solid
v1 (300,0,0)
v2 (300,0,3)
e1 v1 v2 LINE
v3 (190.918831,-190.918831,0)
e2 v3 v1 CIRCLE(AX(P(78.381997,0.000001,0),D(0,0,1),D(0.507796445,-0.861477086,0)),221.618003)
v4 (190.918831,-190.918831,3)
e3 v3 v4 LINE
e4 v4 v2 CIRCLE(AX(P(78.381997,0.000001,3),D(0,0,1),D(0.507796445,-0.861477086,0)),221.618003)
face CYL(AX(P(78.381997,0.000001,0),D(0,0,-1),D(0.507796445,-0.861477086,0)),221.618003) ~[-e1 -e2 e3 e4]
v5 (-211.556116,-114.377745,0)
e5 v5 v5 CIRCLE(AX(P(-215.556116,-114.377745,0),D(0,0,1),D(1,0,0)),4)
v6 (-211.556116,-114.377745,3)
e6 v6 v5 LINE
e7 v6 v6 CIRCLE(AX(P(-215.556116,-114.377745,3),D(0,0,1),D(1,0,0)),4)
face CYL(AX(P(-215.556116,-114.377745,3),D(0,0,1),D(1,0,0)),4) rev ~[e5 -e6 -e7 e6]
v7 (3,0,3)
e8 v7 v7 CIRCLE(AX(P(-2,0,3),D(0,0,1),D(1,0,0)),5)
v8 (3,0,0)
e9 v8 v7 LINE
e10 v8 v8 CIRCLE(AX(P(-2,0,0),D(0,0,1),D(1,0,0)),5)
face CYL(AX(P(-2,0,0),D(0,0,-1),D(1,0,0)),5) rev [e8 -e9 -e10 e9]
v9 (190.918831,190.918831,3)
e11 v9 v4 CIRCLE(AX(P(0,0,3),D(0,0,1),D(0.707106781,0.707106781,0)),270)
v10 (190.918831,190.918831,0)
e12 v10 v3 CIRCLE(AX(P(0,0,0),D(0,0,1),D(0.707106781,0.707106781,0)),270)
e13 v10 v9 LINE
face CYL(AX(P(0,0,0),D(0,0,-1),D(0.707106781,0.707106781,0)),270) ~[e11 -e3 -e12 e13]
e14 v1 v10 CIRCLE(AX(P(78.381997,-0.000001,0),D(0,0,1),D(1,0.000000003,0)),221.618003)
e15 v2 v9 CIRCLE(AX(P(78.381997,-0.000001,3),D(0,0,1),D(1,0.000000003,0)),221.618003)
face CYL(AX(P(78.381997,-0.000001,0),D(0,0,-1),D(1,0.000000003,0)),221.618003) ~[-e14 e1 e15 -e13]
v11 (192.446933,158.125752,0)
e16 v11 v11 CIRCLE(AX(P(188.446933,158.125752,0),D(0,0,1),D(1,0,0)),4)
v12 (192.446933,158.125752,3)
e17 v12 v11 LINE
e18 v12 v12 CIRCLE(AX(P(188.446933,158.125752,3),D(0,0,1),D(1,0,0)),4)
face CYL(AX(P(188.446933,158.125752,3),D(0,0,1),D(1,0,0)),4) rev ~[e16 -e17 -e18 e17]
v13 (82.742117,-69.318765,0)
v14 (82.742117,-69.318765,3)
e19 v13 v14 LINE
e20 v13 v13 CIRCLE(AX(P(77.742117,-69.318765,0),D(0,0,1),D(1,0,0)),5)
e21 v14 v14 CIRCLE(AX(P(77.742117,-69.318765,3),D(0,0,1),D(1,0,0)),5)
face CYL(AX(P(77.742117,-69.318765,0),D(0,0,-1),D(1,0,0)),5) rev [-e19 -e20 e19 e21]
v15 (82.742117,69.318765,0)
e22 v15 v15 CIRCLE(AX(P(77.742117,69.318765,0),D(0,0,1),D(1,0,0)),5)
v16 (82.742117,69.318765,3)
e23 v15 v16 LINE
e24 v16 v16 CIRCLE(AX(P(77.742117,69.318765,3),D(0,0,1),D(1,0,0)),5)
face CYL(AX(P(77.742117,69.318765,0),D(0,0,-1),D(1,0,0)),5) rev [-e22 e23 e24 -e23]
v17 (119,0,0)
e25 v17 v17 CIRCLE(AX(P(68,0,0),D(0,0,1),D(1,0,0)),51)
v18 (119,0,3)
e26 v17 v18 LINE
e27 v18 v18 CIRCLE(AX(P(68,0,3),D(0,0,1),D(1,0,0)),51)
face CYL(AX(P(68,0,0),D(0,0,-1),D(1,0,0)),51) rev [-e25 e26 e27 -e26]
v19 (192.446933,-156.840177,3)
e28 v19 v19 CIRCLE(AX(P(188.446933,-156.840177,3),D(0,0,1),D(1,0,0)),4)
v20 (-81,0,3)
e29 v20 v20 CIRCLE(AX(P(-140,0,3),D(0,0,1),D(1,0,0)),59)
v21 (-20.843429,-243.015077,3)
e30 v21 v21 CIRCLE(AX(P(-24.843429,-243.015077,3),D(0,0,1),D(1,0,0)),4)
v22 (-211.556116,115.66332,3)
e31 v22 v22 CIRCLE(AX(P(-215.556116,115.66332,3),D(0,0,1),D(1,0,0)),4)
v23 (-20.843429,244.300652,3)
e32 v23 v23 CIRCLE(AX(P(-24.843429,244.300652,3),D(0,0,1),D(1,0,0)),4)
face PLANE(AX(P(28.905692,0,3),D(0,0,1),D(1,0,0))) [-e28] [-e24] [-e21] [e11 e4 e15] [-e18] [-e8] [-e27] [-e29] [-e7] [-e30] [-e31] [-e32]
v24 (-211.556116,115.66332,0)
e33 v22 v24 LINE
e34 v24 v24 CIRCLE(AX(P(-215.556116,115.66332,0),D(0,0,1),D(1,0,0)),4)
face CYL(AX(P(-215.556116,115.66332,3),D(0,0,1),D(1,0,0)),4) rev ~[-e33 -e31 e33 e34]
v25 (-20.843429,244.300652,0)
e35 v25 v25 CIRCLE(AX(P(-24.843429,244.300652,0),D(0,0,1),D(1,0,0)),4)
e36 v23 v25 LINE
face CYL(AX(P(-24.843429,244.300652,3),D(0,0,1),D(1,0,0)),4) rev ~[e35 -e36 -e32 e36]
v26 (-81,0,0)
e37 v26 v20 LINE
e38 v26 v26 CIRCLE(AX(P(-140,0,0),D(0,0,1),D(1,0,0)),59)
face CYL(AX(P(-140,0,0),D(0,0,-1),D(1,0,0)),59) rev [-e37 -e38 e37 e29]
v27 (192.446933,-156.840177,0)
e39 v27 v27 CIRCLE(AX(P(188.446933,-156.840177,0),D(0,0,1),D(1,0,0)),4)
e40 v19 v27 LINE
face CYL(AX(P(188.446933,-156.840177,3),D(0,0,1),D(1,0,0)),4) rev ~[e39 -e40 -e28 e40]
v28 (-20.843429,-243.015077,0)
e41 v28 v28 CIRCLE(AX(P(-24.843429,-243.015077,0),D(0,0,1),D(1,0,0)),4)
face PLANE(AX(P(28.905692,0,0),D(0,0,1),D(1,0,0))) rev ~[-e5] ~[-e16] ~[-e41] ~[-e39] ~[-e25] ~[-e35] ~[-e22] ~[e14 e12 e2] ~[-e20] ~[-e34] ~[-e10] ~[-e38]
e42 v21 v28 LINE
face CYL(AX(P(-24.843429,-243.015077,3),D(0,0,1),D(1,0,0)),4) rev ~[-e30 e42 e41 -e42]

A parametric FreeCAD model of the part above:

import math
import FreeCAD as App
import Part
import Sketcher

V = App.Vector

doc = App.newDocument("Part")
body = doc.addObject("PartDesign::Body", "Body")

sketch1 = doc.addObject("Sketcher::SketchObject", "Sketch")
body.addObject(sketch1)
sketch1.AttachmentSupport = (doc.XY_Plane, [""])
sketch1.MapMode = "FlatFace"
sketch1.addGeometry(Part.ArcOfCircle(Part.Circle(V(78.381997, 0.000001, 0), V(0, 0, 1), 221.618003), math.radians(-59.482837), math.radians(0)), False)
sketch1.addGeometry(Part.ArcOfCircle(Part.Circle(V(78.381997, -0.000001, 0), V(0, 0, 1), 221.618003), math.radians(0), math.radians(59.482837)), False)
sketch1.addGeometry(Part.ArcOfCircle(Part.Circle(V(0, 0, 0), V(0, 0, 1), 270), math.radians(45), math.radians(315)), False)
sketch1.addGeometry(Part.Circle(V(77.742117, -69.318765, 0), V(0, 0, 1), 5), False)
sketch1.addGeometry(Part.Circle(V(-140, 0, 0), V(0, 0, 1), 59), False)
sketch1.addGeometry(Part.Circle(V(-2, 0, 0), V(0, 0, 1), 5), False)
sketch1.addGeometry(Part.Circle(V(68, 0, 0), V(0, 0, 1), 51), False)
sketch1.addGeometry(Part.Circle(V(77.742117, 69.318765, 0), V(0, 0, 1), 5), False)
sketch1.addConstraint(Sketcher.Constraint("Tangent", 0, 2, 1, 1))
sketch1.addConstraint(Sketcher.Constraint("Coincident", 1, 2, 2, 1))
sketch1.addConstraint(Sketcher.Constraint("Coincident", 2, 2, 0, 1))
sketch1.addConstraint(Sketcher.Constraint("Coincident", 2, 3, -1, 1))
sketch1.addConstraint(Sketcher.Constraint("Equal", 0, 1))
sketch1.addConstraint(Sketcher.Constraint("Equal", 3, 5))
sketch1.addConstraint(Sketcher.Constraint("Equal", 5, 7))
sketch1.addConstraint(Sketcher.Constraint("Symmetric", 3, 3, 7, 3, -1))
sketch1.addConstraint(Sketcher.Constraint("PointOnObject", 0, 3, -1))
sketch1.addConstraint(Sketcher.Constraint("PointOnObject", 4, 3, -1))
sketch1.addConstraint(Sketcher.Constraint("PointOnObject", 5, 3, -1))
sketch1.addConstraint(Sketcher.Constraint("PointOnObject", 6, 3, -1))
sketch1.addConstraint(Sketcher.Constraint("PointOnObject", 0, 2, -1))
sketch1.addConstraint(Sketcher.Constraint("Diameter", 3, 10.0))
sketch1.addConstraint(Sketcher.Constraint("Diameter", 4, 118.0))
sketch1.addConstraint(Sketcher.Constraint("Diameter", 6, 102.0))
sketch1.addConstraint(Sketcher.Constraint("Radius", 2, 270.0))
sketch1.addConstraint(Sketcher.Constraint("DistanceX", 4, 3, -1, 1, 140.0))
sketch1.addConstraint(Sketcher.Constraint("DistanceX", 5, 3, -1, 1, 2.0))
sketch1.addConstraint(Sketcher.Constraint("DistanceX", -1, 1, 6, 3, 68.0))
sketch1.addConstraint(Sketcher.Constraint("DistanceX", -1, 1, 0, 2, 300.0))
sketch1.addConstraint(Sketcher.Constraint("Radius", 0, 221.618003))
sketch1.addConstraint(Sketcher.Constraint("DistanceX", 3, 3, 1, 3, 0.63988))
sketch1.addConstraint(Sketcher.Constraint("DistanceY", 3, 3, -1, 1, 69.318765))
pad1 = doc.addObject("PartDesign::Pad", "Pad")
body.addObject(pad1)
pad1.Profile = sketch1
pad1.Length = 3

sketch2 = doc.addObject("Sketcher::SketchObject", "Sketch001")
body.addObject(sketch2)
sketch2.AttachmentSupport = (doc.XY_Plane, [""])
sketch2.MapMode = "FlatFace"
sketch2.AttachmentOffset = App.Placement(V(0, 0, 3), App.Rotation())
sketch2.addGeometry(Part.Circle(V(188.446933, 158.125752, 0), V(0, 0, 1), 4), False)
sketch2.addGeometry(Part.Circle(V(-24.843429, 244.300652, 0), V(0, 0, 1), 4), False)
sketch2.addGeometry(Part.Circle(V(-215.556116, 115.66332, 0), V(0, 0, 1), 4), False)
sketch2.addGeometry(Part.Circle(V(-215.556116, -114.377745, 0), V(0, 0, 1), 4), False)
sketch2.addGeometry(Part.Circle(V(-24.843429, -243.015077, 0), V(0, 0, 1), 4), False)
sketch2.addGeometry(Part.Circle(V(188.446933, -156.840177, 0), V(0, 0, 1), 4), False)
sketch2.addConstraint(Sketcher.Constraint("Equal", 0, 1))
sketch2.addConstraint(Sketcher.Constraint("Equal", 1, 2))
sketch2.addConstraint(Sketcher.Constraint("Equal", 2, 3))
sketch2.addConstraint(Sketcher.Constraint("Equal", 3, 4))
sketch2.addConstraint(Sketcher.Constraint("Equal", 4, 5))
sketch2.addConstraint(Sketcher.Constraint("Vertical", 2, 3, 3, 3))
sketch2.addConstraint(Sketcher.Constraint("Vertical", 1, 3, 4, 3))
sketch2.addConstraint(Sketcher.Constraint("Vertical", 0, 3, 5, 3))
sketch2.addConstraint(Sketcher.Constraint("Diameter", 0, 8.0))
sketch2.addConstraint(Sketcher.Constraint("DistanceY", 0, 3, 1, 3, 86.1749))
sketch2.addConstraint(Sketcher.Constraint("DistanceY", 4, 3, 5, 3, 86.1749))
sketch2.addConstraint(Sketcher.Constraint("DistanceY", -1, 1, 0, 3, 158.125752))
sketch2.addConstraint(Sketcher.Constraint("DistanceX", 1, 3, -1, 1, 24.843429))
sketch2.addConstraint(Sketcher.Constraint("DistanceY", -1, 1, 2, 3, 115.66332))
sketch2.addConstraint(Sketcher.Constraint("DistanceX", 2, 3, 0, 3, 404.003049))
sketch2.addConstraint(Sketcher.Constraint("DistanceY", 4, 3, 3, 3, 128.637332))
sketch2.addConstraint(Sketcher.Constraint("DistanceY", 4, 3, 0, 3, 401.140829))
sketch2.addConstraint(Sketcher.Constraint("DistanceX", -1, 1, 0, 3, 188.446933))
pocket1 = doc.addObject("PartDesign::Pocket", "Pocket")
body.addObject(pocket1)
pocket1.Profile = sketch2
pocket1.Type = "ThroughAll"

doc.recompute()
